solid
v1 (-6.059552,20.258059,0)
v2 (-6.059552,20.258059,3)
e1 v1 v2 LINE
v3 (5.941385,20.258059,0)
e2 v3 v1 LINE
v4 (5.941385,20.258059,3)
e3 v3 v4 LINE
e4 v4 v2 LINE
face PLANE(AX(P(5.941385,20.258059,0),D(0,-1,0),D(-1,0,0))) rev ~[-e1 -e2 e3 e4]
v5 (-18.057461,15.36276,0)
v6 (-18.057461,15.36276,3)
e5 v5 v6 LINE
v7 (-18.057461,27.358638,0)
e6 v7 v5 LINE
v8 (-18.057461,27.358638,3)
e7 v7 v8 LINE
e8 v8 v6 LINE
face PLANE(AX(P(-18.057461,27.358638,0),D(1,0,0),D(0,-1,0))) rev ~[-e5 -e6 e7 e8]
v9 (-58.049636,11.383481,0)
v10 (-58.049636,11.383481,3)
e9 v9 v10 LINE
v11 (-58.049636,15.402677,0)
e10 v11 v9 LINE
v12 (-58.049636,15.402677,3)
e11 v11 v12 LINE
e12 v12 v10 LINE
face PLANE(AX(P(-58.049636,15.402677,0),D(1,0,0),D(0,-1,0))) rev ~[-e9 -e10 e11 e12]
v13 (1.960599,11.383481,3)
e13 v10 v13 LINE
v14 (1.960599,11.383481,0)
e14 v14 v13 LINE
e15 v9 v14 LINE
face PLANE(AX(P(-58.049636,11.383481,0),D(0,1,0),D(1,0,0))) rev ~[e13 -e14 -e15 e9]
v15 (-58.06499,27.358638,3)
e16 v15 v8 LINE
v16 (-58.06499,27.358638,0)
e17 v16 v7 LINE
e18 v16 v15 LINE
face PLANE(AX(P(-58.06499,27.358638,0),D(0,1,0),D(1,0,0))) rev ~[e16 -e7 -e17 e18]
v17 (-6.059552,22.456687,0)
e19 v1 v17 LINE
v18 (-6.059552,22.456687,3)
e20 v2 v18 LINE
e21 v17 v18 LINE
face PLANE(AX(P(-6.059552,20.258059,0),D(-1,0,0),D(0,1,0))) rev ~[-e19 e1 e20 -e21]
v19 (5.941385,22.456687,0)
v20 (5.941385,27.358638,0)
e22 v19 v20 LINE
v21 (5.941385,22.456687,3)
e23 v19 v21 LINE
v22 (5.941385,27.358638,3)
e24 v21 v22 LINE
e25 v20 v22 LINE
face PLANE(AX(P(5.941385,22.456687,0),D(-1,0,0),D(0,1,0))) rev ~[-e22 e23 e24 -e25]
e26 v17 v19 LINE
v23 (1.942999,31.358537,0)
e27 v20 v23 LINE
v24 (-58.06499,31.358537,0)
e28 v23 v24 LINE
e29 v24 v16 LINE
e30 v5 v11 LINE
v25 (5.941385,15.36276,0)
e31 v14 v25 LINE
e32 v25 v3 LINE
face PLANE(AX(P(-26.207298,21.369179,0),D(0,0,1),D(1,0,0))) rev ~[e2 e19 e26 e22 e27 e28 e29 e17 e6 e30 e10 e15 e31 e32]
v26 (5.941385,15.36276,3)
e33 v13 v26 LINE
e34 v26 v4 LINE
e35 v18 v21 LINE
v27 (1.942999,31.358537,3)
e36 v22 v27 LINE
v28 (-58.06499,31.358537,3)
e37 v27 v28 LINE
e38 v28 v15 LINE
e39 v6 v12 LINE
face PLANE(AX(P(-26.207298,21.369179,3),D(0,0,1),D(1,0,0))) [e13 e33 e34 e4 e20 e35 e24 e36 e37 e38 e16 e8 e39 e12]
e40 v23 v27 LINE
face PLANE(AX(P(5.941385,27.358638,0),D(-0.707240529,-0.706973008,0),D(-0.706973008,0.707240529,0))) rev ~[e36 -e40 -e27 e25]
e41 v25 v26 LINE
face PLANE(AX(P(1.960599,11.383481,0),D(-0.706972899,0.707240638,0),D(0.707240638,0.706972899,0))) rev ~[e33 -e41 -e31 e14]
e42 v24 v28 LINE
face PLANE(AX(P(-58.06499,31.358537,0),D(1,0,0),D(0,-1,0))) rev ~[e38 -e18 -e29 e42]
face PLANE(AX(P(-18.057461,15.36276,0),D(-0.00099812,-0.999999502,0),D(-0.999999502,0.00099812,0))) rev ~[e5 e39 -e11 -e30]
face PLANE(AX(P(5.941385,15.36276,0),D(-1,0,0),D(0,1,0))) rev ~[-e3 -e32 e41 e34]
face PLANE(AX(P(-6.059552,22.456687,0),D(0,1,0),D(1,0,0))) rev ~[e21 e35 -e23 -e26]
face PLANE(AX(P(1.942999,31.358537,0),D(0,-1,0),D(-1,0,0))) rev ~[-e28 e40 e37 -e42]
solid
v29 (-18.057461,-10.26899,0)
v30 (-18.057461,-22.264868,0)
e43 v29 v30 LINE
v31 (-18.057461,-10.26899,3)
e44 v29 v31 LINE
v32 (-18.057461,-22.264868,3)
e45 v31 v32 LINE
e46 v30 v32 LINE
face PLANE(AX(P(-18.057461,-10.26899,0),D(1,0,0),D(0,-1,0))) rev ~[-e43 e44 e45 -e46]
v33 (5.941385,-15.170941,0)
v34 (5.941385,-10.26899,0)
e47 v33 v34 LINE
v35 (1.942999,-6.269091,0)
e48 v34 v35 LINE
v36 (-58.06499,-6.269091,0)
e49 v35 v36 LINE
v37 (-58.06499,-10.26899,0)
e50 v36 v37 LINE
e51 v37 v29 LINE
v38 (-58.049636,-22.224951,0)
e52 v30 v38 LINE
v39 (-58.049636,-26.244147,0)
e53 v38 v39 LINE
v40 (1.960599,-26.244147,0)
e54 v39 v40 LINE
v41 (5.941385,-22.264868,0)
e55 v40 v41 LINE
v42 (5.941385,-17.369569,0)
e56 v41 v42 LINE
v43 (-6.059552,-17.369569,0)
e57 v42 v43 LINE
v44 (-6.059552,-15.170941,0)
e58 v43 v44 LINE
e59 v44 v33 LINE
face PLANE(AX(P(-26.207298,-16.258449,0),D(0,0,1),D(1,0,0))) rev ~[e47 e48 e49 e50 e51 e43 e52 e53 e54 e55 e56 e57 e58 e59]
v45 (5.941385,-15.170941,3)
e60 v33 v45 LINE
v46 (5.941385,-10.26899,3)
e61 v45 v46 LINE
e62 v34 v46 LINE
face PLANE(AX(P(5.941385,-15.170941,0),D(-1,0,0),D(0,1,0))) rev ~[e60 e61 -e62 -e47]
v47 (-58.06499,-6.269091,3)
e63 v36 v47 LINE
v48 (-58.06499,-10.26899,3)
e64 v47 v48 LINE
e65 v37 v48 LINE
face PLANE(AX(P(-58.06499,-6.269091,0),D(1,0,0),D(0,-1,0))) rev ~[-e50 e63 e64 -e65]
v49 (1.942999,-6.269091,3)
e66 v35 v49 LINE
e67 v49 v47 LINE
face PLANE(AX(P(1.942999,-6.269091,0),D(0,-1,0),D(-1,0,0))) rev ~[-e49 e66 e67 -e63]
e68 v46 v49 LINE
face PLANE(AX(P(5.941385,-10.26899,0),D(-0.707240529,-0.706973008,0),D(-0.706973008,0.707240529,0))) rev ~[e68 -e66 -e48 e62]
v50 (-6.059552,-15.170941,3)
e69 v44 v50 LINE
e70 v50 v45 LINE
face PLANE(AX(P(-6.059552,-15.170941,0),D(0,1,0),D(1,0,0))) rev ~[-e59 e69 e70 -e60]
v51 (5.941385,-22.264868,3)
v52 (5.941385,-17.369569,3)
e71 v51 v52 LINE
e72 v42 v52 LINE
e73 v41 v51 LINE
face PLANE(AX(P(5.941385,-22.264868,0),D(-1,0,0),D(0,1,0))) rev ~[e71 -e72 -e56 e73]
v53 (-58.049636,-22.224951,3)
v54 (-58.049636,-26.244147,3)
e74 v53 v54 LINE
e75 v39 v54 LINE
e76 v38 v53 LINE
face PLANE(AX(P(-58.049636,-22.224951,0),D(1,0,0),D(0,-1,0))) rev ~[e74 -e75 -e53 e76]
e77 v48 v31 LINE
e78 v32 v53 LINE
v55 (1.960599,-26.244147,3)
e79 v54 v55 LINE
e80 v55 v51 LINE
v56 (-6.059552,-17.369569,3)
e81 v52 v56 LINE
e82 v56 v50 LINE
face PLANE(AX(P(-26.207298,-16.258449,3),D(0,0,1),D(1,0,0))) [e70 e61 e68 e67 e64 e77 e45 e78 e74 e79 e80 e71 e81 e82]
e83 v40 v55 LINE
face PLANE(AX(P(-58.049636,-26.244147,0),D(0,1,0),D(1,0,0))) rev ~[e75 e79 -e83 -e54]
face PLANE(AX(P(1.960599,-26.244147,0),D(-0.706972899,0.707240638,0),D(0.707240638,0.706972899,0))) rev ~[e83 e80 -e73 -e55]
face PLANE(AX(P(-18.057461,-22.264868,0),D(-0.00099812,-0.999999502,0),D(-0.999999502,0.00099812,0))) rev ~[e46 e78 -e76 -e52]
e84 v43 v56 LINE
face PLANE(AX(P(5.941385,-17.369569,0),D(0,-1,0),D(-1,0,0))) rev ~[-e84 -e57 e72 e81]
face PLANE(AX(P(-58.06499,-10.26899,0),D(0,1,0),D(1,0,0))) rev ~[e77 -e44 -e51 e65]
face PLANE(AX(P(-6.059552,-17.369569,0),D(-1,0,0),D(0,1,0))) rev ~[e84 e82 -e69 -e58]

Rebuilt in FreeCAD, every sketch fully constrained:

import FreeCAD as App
import Part
import Sketcher

V = App.Vector
Q = App.Units.Quantity

doc = App.newDocument("Part")
params = doc.addObject("Spreadsheet::Sheet", "Params")
for row, (alias, value) in enumerate([
    ("pad1_length", "3 mm"),
], start=1):
    params.set(f"A{row}", alias)
    params.set(f"B{row}", "=" + value)
    params.setAlias(f"B{row}", alias)

body = doc.addObject("PartDesign::Body", "Body")
body.AllowCompound = True

sketch1 = doc.addObject("Sketcher::SketchObject", "Sketch")
body.addObject(sketch1)
sketch1.AttachmentSupport = (doc.XY_Plane, [""])
sketch1.MapMode = "FlatFace"
sketch1.addGeometry([
    Part.LineSegment(V(-18.1, 15.4, 0), V(-58, 15.4, 0)),
    Part.LineSegment(V(-58, 15.4, 0), V(-58, 11.4, 0)),
    Part.LineSegment(V(-58, 11.4, 0), V(2, 11.4, 0)),
    Part.LineSegment(V(2, 11.4, 0), V(5.9, 15.4, 0)),
    Part.LineSegment(V(5.9, 15.4, 0), V(5.9, 20.3, 0)),
    Part.LineSegment(V(5.9, 20.3, 0), V(-6.1, 20.3, 0)),
    Part.LineSegment(V(-6.1, 20.3, 0), V(-6.1, 22.5, 0)),
    Part.LineSegment(V(-6.1, 22.5, 0), V(5.9, 22.5, 0)),
    Part.LineSegment(V(5.9, 22.5, 0), V(5.9, 27.4, 0)),
    Part.LineSegment(V(5.9, 27.4, 0), V(1.9, 31.4, 0)),
    Part.LineSegment(V(1.9, 31.4, 0), V(-58.1, 31.4, 0)),
    Part.LineSegment(V(-58.1, 31.4, 0), V(-58.1, 27.4, 0)),
    Part.LineSegment(V(-58.1, 27.4, 0), V(-18.1, 27.4, 0)),
    Part.LineSegment(V(-18.1, 27.4, 0), V(-18.1, 15.4, 0)),
    Part.LineSegment(V(-18.1, -22.3, 0), V(-58, -22.2, 0)),
    Part.LineSegment(V(-58, -22.2, 0), V(-58, -26.2, 0)),
    Part.LineSegment(V(-58, -26.2, 0), V(2, -26.2, 0)),
    Part.LineSegment(V(2, -26.2, 0), V(5.9, -22.3, 0)),
    Part.LineSegment(V(5.9, -22.3, 0), V(5.9, -17.4, 0)),
    Part.LineSegment(V(5.9, -17.4, 0), V(-6.1, -17.4, 0)),
    Part.LineSegment(V(-6.1, -17.4, 0), V(-6.1, -15.2, 0)),
    Part.LineSegment(V(-6.1, -15.2, 0), V(5.9, -15.2, 0)),
    Part.LineSegment(V(5.9, -15.2, 0), V(5.9, -10.3, 0)),
    Part.LineSegment(V(5.9, -10.3, 0), V(1.9, -6.3, 0)),
    Part.LineSegment(V(1.9, -6.3, 0), V(-58.1, -6.3, 0)),
    Part.LineSegment(V(-58.1, -6.3, 0), V(-58.1, -10.3, 0)),
    Part.LineSegment(V(-58.1, -10.3, 0), V(-18.1, -10.3, 0)),
    Part.LineSegment(V(-18.1, -10.3, 0), V(-18.1, -22.3, 0)),
], False)
sketch1.addConstraint([
    Sketcher.Constraint("Coincident", 0, 2, 1, 1),
    Sketcher.Constraint("Coincident", 1, 2, 2, 1),
    Sketcher.Constraint("Coincident", 2, 2, 3, 1),
    Sketcher.Constraint("Coincident", 3, 2, 4, 1),
    Sketcher.Constraint("Coincident", 4, 2, 5, 1),
    Sketcher.Constraint("Coincident", 5, 2, 6, 1),
    Sketcher.Constraint("Coincident", 6, 2, 7, 1),
    Sketcher.Constraint("Coincident", 7, 2, 8, 1),
    Sketcher.Constraint("Coincident", 8, 2, 9, 1),
    Sketcher.Constraint("Coincident", 9, 2, 10, 1),
    Sketcher.Constraint("Coincident", 10, 2, 11, 1),
    Sketcher.Constraint("Coincident", 11, 2, 12, 1),
    Sketcher.Constraint("Coincident", 12, 2, 13, 1),
    Sketcher.Constraint("Coincident", 13, 2, 0, 1),
    Sketcher.Constraint("Coincident", 14, 2, 15, 1),
    Sketcher.Constraint("Coincident", 15, 2, 16, 1),
    Sketcher.Constraint("Coincident", 16, 2, 17, 1),
    Sketcher.Constraint("Coincident", 17, 2, 18, 1),
    Sketcher.Constraint("Coincident", 18, 2, 19, 1),
    Sketcher.Constraint("Coincident", 19, 2, 20, 1),
    Sketcher.Constraint("Coincident", 20, 2, 21, 1),
    Sketcher.Constraint("Coincident", 21, 2, 22, 1),
    Sketcher.Constraint("Coincident", 22, 2, 23, 1),
    Sketcher.Constraint("Coincident", 23, 2, 24, 1),
    Sketcher.Constraint("Coincident", 24, 2, 25, 1),
    Sketcher.Constraint("Coincident", 25, 2, 26, 1),
    Sketcher.Constraint("Coincident", 26, 2, 27, 1),
    Sketcher.Constraint("Coincident", 27, 2, 14, 1),
    Sketcher.Constraint("Vertical", 1),
    Sketcher.Constraint("Horizontal", 2),
    Sketcher.Constraint("Vertical", 4),
    Sketcher.Constraint("Horizontal", 5),
    Sketcher.Constraint("Vertical", 6),
    Sketcher.Constraint("Horizontal", 7),
    Sketcher.Constraint("Vertical", 8),
    Sketcher.Constraint("Horizontal", 10),
    Sketcher.Constraint("Vertical", 11),
    Sketcher.Constraint("Horizontal", 12),
    Sketcher.Constraint("Vertical", 13),
    Sketcher.Constraint("Vertical", 15),
    Sketcher.Constraint("Horizontal", 16),
    Sketcher.Constraint("Vertical", 18),
    Sketcher.Constraint("Horizontal", 19),
    Sketcher.Constraint("Vertical", 20),
    Sketcher.Constraint("Horizontal", 21),
    Sketcher.Constraint("Vertical", 22),
    Sketcher.Constraint("Horizontal", 24),
    Sketcher.Constraint("Vertical", 25),
    Sketcher.Constraint("Horizontal", 26),
    Sketcher.Constraint("Vertical", 27),
    Sketcher.Constraint("Perpendicular", 3, 9),
    Sketcher.Constraint("Parallel", 0, 14),
    Sketcher.Constraint("Perpendicular", 9, 17),
    Sketcher.Constraint("Perpendicular", 17, 23),
    Sketcher.Constraint("Horizontal", 8, 2, 11, 2),
    Sketcher.Constraint("Horizontal", 3, 2, 13, 2),
    Sketcher.Constraint("Horizontal", 22, 2, 25, 2),
    Sketcher.Constraint("Horizontal", 17, 2, 27, 2),
    Sketcher.Constraint("Vertical", 4, 2, 7, 2),
    Sketcher.Constraint("Vertical", 1, 2, 14, 2),
    Sketcher.Constraint("Vertical", 2, 2, 16, 2),
    Sketcher.Constraint("Vertical", 8, 2, 17, 2),
    Sketcher.Constraint("Vertical", 6, 2, 19, 2),
    Sketcher.Constraint("Vertical", 18, 2, 21, 2),
    Sketcher.Constraint("Vertical", 9, 2, 23, 2),
    Sketcher.Constraint("Vertical", 11, 2, 24, 2),
    Sketcher.Constraint("Vertical", 13, 2, 26, 2),
    Sketcher.Constraint("Equal", 4, 18),
    Sketcher.Constraint("Equal", 6, 20),
    Sketcher.Constraint("Equal", 8, 22),
    Sketcher.Constraint("DistanceY", 4, 1, 4, 2, Q("4.895299 mm")),
    Sketcher.Constraint("DistanceY", 11, 2, 11, 1, Q("3.999899 mm")),
    Sketcher.Constraint("DistanceX", -1, 1, 9, 2, Q("1.942999 mm")),
    Sketcher.Constraint("DistanceX", 10, 2, 10, 1, Q("60.007989 mm")),
    Sketcher.Constraint("DistanceX", 12, 1, 12, 2, Q("40.007529 mm")),
    Sketcher.Constraint("DistanceY", 8, 1, 8, 2, Q("4.901951 mm")),
    Sketcher.Constraint("DistanceX", -1, 1, 2, 2, Q("1.960599 mm")),
    Sketcher.Constraint("Distance", 9, Q("5.655642 mm")),
    Sketcher.Constraint("DistanceX", 2, 1, 2, 2, Q("60.010235 mm")),
    Sketcher.Constraint("DistanceX", 5, 2, 5, 1, Q("12.000937 mm")),
    Sketcher.Constraint("DistanceY", 1, 2, 1, 1, Q("4.019196 mm")),
    Sketcher.Constraint("DistanceY", 6, 1, 6, 2, Q("2.198628 mm")),
    Sketcher.Constraint("DistanceY", -1, 1, 1, 2, Q("11.383481 mm")),
    Sketcher.Constraint("DistanceY", 14, 2, -1, 1, Q("22.224951 mm")),
])
pad1 = doc.addObject("PartDesign::Pad", "Pad")
body.addObject(pad1)
pad1.Profile = sketch1
pad1.setExpression("Length", "Params.pad1_length")

doc.recompute()
